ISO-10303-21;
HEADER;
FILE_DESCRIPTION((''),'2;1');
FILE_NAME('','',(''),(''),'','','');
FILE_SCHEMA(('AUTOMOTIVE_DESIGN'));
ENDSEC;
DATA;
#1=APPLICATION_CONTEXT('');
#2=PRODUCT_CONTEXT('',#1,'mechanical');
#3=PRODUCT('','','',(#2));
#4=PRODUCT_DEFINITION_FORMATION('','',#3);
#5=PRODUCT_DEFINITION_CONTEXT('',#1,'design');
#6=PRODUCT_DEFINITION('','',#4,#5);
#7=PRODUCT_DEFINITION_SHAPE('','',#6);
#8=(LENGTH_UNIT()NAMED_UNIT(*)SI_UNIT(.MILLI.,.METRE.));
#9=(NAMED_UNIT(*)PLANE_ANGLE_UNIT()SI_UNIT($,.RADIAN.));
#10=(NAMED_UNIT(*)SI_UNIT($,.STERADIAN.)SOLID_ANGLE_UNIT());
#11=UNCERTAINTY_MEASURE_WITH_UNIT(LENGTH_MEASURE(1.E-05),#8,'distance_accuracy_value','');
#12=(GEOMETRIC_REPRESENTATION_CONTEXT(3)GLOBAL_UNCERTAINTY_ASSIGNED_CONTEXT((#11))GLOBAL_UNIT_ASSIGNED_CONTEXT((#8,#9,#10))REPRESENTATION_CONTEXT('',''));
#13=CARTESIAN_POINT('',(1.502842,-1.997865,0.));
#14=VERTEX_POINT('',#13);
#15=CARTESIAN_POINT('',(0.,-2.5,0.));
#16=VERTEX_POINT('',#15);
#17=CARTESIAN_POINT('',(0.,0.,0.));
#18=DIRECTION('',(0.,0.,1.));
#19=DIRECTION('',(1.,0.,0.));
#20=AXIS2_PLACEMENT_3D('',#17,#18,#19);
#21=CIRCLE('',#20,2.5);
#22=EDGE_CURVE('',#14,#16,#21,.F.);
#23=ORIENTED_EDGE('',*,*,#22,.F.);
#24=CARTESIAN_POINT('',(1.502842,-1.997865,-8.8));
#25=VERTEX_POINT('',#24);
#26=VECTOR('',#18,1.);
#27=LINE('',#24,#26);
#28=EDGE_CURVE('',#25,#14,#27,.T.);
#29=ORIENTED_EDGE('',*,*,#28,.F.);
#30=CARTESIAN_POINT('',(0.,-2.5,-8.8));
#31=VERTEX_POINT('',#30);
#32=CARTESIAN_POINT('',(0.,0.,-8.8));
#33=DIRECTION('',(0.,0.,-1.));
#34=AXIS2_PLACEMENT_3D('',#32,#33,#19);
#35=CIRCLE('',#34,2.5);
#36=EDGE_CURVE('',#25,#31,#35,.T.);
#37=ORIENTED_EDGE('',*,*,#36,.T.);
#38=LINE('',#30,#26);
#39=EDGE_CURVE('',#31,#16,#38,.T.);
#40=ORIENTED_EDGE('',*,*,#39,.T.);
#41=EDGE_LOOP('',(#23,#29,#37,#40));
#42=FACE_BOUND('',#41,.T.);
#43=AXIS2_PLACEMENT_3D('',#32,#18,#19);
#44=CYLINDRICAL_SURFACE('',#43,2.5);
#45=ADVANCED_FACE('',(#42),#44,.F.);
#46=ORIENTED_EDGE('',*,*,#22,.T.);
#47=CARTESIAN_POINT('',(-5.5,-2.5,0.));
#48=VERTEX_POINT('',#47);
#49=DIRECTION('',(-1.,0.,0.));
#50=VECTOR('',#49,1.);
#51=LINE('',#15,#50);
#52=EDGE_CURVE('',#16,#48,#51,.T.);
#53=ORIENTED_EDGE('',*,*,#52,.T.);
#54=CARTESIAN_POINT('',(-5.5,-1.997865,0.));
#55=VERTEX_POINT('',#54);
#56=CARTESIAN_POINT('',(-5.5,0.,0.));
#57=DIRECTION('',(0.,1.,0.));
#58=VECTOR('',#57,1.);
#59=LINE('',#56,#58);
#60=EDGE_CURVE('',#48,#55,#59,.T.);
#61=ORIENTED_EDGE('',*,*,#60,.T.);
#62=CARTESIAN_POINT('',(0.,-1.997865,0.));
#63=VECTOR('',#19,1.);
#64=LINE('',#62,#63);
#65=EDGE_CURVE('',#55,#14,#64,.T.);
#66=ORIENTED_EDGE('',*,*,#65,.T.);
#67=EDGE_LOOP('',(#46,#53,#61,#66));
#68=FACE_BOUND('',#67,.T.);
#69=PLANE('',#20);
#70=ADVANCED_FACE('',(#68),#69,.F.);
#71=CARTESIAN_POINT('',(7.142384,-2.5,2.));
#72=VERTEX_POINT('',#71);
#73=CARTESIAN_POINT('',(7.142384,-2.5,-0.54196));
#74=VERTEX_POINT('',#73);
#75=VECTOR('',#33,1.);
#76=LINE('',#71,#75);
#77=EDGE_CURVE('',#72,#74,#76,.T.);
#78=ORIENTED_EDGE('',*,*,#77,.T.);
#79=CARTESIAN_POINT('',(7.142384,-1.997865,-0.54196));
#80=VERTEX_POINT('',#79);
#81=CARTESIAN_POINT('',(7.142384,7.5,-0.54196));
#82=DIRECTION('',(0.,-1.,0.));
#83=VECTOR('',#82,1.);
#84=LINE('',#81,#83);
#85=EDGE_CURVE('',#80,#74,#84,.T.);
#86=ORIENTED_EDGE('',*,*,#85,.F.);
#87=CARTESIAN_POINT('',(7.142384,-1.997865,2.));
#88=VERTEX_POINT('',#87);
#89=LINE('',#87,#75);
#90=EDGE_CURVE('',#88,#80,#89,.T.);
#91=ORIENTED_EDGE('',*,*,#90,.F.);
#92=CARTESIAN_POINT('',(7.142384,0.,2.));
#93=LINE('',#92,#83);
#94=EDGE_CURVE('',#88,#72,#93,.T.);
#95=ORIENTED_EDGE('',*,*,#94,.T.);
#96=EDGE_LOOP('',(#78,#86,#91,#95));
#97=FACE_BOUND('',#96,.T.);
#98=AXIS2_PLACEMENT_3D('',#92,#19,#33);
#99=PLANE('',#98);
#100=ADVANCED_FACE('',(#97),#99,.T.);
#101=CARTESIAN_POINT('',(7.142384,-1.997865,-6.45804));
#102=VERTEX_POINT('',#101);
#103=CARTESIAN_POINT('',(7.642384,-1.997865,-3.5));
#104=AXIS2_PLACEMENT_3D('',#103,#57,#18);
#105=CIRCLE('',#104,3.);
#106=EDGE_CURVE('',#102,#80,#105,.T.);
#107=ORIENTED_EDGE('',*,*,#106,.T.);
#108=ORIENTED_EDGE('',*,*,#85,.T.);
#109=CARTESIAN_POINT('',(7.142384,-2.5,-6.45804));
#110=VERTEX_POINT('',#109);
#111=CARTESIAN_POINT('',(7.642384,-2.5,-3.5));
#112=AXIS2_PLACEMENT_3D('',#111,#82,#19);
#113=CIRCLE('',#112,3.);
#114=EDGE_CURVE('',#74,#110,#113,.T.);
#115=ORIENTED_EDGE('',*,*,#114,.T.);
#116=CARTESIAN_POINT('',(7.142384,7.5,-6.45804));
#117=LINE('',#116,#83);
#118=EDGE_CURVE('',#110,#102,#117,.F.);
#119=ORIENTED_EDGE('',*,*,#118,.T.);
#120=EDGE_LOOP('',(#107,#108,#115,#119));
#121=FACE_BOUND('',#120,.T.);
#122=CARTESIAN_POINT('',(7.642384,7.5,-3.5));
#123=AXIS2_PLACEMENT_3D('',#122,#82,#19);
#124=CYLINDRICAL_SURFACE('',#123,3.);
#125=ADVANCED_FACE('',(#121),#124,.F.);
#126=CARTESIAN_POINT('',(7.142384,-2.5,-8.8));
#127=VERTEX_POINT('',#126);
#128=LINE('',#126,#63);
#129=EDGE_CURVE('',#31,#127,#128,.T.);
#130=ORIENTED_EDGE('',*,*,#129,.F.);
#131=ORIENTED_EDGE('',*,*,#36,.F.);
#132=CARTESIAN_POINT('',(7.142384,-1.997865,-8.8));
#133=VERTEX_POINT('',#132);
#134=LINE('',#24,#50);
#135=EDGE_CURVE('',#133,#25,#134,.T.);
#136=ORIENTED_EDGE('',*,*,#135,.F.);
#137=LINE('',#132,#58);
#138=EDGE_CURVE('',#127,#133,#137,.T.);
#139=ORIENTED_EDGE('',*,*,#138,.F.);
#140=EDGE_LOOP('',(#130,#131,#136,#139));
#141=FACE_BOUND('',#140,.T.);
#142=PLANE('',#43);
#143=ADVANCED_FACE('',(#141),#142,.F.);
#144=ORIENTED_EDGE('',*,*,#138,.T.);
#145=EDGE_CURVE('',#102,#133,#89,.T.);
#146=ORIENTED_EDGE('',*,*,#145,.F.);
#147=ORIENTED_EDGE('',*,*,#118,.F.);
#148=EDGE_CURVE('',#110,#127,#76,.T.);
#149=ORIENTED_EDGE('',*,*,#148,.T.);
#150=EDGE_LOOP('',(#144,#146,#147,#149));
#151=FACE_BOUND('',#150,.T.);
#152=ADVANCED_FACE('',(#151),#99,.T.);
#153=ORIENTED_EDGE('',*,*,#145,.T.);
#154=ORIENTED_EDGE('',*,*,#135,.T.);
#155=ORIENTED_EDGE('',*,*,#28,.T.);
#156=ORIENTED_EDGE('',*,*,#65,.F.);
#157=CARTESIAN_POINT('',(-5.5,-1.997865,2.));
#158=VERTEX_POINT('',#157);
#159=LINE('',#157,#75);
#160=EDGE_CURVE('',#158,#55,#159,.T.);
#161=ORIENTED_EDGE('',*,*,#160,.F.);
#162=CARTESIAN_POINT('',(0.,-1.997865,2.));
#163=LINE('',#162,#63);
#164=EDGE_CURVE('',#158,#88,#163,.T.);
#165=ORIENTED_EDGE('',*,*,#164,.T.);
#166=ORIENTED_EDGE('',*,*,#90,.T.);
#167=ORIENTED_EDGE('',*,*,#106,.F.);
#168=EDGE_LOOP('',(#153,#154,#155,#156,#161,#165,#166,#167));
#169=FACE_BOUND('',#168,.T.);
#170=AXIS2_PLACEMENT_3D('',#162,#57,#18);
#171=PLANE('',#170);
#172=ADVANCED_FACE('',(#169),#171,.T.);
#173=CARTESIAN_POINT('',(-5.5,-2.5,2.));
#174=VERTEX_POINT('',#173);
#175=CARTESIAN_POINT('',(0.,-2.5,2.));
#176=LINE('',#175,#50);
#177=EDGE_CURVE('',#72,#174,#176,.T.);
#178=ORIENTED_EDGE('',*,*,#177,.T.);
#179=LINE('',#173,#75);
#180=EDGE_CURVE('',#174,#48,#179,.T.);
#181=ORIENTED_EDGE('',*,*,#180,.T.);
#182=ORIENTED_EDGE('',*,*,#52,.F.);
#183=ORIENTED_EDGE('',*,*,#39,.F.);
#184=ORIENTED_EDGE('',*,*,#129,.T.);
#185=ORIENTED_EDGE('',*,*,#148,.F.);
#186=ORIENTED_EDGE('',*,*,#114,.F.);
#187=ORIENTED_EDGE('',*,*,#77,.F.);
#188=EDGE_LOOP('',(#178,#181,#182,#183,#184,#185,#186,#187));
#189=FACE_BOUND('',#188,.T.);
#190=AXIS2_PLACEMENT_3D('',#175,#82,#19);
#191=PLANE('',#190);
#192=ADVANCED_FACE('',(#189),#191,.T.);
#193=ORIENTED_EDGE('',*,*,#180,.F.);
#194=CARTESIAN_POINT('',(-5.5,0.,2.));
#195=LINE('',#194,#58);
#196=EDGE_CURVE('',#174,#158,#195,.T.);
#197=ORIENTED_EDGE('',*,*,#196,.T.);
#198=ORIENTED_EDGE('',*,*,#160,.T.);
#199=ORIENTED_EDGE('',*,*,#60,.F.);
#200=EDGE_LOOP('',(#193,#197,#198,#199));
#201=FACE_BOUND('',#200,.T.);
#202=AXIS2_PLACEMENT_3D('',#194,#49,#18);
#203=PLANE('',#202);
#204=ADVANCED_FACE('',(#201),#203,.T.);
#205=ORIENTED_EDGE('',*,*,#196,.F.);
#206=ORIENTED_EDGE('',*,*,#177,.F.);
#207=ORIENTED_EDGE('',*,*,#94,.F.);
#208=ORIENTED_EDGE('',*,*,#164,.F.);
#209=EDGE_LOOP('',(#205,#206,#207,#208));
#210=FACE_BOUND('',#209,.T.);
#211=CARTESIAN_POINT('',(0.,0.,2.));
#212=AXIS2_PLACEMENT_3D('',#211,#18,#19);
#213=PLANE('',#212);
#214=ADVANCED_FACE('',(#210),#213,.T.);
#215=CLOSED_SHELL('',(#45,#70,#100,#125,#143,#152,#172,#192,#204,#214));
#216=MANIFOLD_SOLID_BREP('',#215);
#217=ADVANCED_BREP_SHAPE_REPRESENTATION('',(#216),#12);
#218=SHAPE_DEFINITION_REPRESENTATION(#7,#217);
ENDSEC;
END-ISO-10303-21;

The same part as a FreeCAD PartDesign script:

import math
import FreeCAD as App
import Part
import Sketcher
Q = App.Units.Quantity

doc = App.newDocument("Part")
body = doc.addObject("PartDesign::Body", "Body")

# Sketch on XY plane
sketch1 = body.newObject("Sketcher::SketchObject", "Sketch")
sketch1.AttachmentSupport = (doc.getObject("XY_Plane"), [""])
sketch1.MapMode = "FlatFace"
sketch1.addGeometry([
    Part.LineSegment(App.Vector(-5.5, -2, 0), App.Vector(-5.5, -2.5, 0)),
    Part.LineSegment(App.Vector(-5.5, -2.5, 0), App.Vector(7.1, -2.5, 0)),
    Part.LineSegment(App.Vector(7.1, -2.5, 0), App.Vector(7.1, -2, 0)),
    Part.LineSegment(App.Vector(7.1, -2, 0), App.Vector(-5.5, -2, 0)),
], False)
sketch1.addConstraint([
    Sketcher.Constraint("Coincident", 0, 2, 1, 1),
    Sketcher.Constraint("Coincident", 1, 2, 2, 1),
    Sketcher.Constraint("Coincident", 2, 2, 3, 1),
    Sketcher.Constraint("Coincident", 3, 2, 0, 1),
    Sketcher.Constraint("Vertical", 0),
    Sketcher.Constraint("Horizontal", 1),
    Sketcher.Constraint("Vertical", 2),
    Sketcher.Constraint("Horizontal", 3),
    Sketcher.Constraint("DistanceX", 0, 2, -1, 1, Q("5.5 mm")),
    Sketcher.Constraint("DistanceY", 0, 2, -1, 1, Q("2.5 mm")),
    Sketcher.Constraint("DistanceX", 1, 1, 1, 2, Q("12.642384 mm")),
    Sketcher.Constraint("DistanceY", 0, 2, 0, 1, Q("0.502135 mm")),
])
pad1 = body.newObject("PartDesign::Pad", "Pad")
pad1.Profile = sketch1
pad1.Length = 2

# Sketch on XY plane
sketch2 = body.newObject("Sketcher::SketchObject", "Sketch001")
sketch2.AttachmentSupport = (doc.getObject("XY_Plane"), [""])
sketch2.MapMode = "FlatFace"
sketch2.AttachmentOffset = App.Placement(App.Vector(0, 0, 2), App.Rotation())
sketch2.addGeometry([
    Part.LineSegment(App.Vector(7.1, -2, 0), App.Vector(1.5, -2, 0)),
    Part.ArcOfCircle(Part.Circle(App.Vector(0, 0, 0), App.Vector(0, 0, 1), 2.5), math.radians(-90), math.radians(-53)),
    Part.LineSegment(App.Vector(0, -2.5, 0), App.Vector(7.1, -2.5, 0)),
    Part.LineSegment(App.Vector(7.1, -2.5, 0), App.Vector(7.1, -2, 0)),
], False)
sketch2.addConstraint([
    Sketcher.Constraint("Coincident", 0, 2, 1, 2),
    Sketcher.Constraint("Tangent", 1, 1, 2, 1),
    Sketcher.Constraint("Coincident", 2, 2, 3, 1),
    Sketcher.Constraint("Coincident", 3, 2, 0, 1),
    Sketcher.Constraint("Horizontal", 0),
    Sketcher.Constraint("Horizontal", 2),
    Sketcher.Constraint("Vertical", 3),
    Sketcher.Constraint("Coincident", 1, 3, -1, 1),
    Sketcher.Constraint("Radius", 1, Q("2.5 mm")),
    Sketcher.Constraint("DistanceX", 0, 2, 0, 1, Q("5.639542 mm")),
    Sketcher.Constraint("DistanceX", 2, 1, 2, 2, Q("7.142384 mm")),
])
pad2 = body.newObject("PartDesign::Pad", "Pad001")
pad2.Profile = sketch2
pad2.Length = 10.8
pad2.Reversed = True

# Sketch on XZ plane
sketch3 = body.newObject("Sketcher::SketchObject", "Sketch002")
sketch3.AttachmentSupport = (doc.getObject("XZ_Plane"), [""])
sketch3.MapMode = "FlatFace"
sketch3.AttachmentOffset = App.Placement(App.Vector(0, 0, 2.5), App.Rotation())
sketch3.addGeometry(Part.Circle(App.Vector(7.6, -3.5, 0), App.Vector(0, 0, 1), 3), False)
sketch3.addConstraint([
    Sketcher.Constraint("Diameter", 0, Q("6 mm")),
    Sketcher.Constraint("DistanceY", 0, 3, -1, 1, Q("3.5 mm")),
    Sketcher.Constraint("DistanceX", -1, 1, 0, 3, Q("7.642384 mm")),
])
pocket1 = body.newObject("PartDesign::Pocket", "Pocket")
pocket1.Profile = sketch3
pocket1.Length = 10

doc.recompute()
